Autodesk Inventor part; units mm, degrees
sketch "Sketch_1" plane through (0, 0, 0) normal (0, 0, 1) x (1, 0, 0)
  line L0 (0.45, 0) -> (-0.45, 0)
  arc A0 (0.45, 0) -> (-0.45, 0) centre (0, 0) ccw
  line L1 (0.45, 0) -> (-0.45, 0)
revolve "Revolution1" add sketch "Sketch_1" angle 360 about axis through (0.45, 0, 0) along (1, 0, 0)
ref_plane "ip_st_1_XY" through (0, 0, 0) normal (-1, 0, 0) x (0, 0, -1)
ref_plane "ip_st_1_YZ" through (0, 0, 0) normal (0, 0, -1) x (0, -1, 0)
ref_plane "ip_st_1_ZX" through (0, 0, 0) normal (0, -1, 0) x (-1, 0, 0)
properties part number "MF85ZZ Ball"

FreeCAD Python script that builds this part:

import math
import FreeCAD as App
import Part
import Sketcher

V = App.Vector
Q = App.Units.Quantity

doc = App.newDocument("Part")
body = doc.addObject("PartDesign::Body", "Body")

sketch1 = body.newObject("Sketcher::SketchObject", "Sketch")
sketch1.AttachmentSupport = (doc.getObject("XY_Plane"), [""])
sketch1.MapMode = "FlatFace"
sketch1.addGeometry([
    Part.LineSegment(V(-0.45, 0, 0), V(0.45, 0, 0)),
    Part.ArcOfCircle(Part.Circle(V(0, 0, 0), V(0, 0, 1), 0.45), math.radians(0), math.radians(180)),
], False)
sketch1.addConstraint([
    Sketcher.Constraint("Coincident", 0, 1, 1, 2),
    Sketcher.Constraint("Coincident", 1, 1, 0, 2),
    Sketcher.Constraint("Horizontal", 0),
    Sketcher.Constraint("Coincident", 1, 3, -1, 1),
    Sketcher.Constraint("PointOnObject", 0, 1, -1),
    Sketcher.Constraint("Radius", 1, Q("0.45 mm")),
])
revolution = body.newObject("PartDesign::Revolution", "Revolution")
revolution.Profile = sketch1
revolution.ReferenceAxis = (sketch1, ["H_Axis"])
revolution.Angle = 360

doc.recompute()
